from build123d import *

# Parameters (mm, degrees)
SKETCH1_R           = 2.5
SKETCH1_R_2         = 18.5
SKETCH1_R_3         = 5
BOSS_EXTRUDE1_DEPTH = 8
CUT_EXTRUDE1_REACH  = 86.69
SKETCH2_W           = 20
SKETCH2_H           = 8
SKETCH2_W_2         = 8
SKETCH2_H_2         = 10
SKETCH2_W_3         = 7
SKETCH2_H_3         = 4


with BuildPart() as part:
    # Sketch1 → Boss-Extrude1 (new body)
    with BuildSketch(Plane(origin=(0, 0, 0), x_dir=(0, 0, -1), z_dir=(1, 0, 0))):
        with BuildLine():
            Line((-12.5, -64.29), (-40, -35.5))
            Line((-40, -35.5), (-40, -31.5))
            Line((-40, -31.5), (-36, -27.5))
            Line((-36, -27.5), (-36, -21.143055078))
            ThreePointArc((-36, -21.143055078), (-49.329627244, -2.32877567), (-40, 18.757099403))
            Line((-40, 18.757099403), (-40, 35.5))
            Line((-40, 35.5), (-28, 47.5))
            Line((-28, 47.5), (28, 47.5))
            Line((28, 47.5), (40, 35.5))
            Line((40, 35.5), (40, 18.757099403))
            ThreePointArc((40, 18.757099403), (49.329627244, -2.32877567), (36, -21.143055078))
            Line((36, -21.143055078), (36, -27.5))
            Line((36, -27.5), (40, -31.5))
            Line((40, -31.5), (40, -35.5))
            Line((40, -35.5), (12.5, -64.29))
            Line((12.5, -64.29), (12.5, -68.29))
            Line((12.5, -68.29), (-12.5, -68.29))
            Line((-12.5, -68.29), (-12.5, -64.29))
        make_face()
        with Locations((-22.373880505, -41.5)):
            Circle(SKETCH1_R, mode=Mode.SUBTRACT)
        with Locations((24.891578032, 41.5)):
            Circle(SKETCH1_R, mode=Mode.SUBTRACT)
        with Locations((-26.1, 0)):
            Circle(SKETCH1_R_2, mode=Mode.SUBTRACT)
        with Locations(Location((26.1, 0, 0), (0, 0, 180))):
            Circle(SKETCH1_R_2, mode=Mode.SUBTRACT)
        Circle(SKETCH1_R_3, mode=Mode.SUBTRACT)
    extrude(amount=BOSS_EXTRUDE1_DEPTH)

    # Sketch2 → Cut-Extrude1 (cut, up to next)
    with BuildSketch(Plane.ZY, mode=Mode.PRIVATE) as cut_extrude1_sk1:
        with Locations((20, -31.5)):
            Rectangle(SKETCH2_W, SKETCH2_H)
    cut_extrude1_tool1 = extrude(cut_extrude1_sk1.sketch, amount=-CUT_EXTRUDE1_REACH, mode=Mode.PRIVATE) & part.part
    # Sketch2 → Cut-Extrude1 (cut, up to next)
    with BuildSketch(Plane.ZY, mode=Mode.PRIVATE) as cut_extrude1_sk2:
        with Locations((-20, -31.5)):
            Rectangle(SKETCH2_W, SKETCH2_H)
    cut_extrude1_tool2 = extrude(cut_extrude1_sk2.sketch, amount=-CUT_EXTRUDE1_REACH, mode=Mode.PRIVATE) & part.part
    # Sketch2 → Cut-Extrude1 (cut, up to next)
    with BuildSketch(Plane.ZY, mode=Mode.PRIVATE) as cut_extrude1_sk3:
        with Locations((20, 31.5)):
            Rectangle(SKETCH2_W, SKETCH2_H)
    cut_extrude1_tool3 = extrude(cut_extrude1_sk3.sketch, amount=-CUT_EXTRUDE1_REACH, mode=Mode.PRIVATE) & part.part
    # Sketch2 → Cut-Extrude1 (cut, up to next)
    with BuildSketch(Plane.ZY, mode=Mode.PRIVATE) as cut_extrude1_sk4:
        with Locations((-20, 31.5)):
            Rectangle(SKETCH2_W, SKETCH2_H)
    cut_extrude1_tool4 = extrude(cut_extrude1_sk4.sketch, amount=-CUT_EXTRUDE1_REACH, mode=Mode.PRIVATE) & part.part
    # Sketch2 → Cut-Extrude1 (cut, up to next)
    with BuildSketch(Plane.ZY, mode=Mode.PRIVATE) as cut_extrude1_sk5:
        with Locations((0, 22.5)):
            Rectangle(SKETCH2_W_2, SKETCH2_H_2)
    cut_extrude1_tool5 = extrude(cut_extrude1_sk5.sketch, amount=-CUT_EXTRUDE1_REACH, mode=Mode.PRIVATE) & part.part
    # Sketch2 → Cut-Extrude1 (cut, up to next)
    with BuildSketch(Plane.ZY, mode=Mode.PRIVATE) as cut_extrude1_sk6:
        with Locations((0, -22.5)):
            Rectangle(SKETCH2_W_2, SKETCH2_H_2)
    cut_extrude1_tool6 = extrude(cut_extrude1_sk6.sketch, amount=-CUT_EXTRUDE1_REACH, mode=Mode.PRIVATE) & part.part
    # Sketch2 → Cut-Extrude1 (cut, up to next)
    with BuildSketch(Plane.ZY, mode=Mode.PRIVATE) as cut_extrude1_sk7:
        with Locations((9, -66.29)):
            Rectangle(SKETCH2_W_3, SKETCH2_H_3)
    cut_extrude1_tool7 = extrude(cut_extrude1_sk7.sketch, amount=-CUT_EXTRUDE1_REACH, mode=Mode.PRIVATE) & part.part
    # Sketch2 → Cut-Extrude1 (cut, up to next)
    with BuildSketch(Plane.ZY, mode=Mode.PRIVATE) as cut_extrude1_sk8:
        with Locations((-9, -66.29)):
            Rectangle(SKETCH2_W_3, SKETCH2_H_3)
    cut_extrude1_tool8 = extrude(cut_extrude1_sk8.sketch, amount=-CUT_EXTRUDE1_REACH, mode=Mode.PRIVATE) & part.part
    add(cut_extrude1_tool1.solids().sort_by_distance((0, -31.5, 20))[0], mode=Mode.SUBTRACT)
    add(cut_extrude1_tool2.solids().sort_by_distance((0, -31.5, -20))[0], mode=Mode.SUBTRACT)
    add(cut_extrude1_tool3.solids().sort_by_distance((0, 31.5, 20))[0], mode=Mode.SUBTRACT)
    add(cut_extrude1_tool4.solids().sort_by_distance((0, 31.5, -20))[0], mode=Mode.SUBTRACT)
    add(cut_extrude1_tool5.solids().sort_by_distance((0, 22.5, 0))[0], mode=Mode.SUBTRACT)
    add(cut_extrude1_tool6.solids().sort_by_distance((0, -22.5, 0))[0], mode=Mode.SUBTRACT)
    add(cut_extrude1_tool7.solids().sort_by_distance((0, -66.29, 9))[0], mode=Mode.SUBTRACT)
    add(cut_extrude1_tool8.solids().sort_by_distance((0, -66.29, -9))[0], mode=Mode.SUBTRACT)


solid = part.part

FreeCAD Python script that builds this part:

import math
import FreeCAD as App
import Part
import Sketcher

V = App.Vector


def add_polygon(sketch, points):
    """Adds a closed chain of lines whose ends are joined by coincident constraints."""
    first, n = sketch.GeometryCount, len(points)
    for a, b in zip(points, points[1:] + points[:1]):
        sketch.addGeometry(Part.LineSegment(App.Vector(*a, 0), App.Vector(*b, 0)), False)
    for i in range(n):
        sketch.addConstraint(Sketcher.Constraint("Coincident", first + i, 2, first + (i + 1) % n, 1))

doc = App.newDocument("Part")
body = doc.addObject("PartDesign::Body", "Body")

# Sketch on YZ plane
sketch1 = body.newObject("Sketcher::SketchObject", "Sketch")
sketch1.AttachmentSupport = (doc.getObject("YZ_Plane"), [""])
sketch1.MapMode = "FlatFace"
sketch1.addGeometry(Part.LineSegment(V(-35.5, 40, 0), V(-64.29, 12.5, 0)), False)
sketch1.addGeometry(Part.LineSegment(V(-64.29, 12.5, 0), V(-68.29, 12.5, 0)), False)
sketch1.addGeometry(Part.LineSegment(V(-68.29, 12.5, 0), V(-68.29, -12.5, 0)), False)
sketch1.addGeometry(Part.LineSegment(V(-68.29, -12.5, 0), V(-64.29, -12.5, 0)), False)
sketch1.addGeometry(Part.LineSegment(V(-64.29, -12.5, 0), V(-35.5, -40, 0)), False)
sketch1.addGeometry(Part.LineSegment(V(-35.5, -40, 0), V(-31.5, -40, 0)), False)
sketch1.addGeometry(Part.LineSegment(V(-31.5, -40, 0), V(-27.5, -36, 0)), False)
sketch1.addGeometry(Part.LineSegment(V(-27.5, -36, 0), V(-21.143055, -36, 0)), False)
sketch1.addGeometry(Part.ArcOfCircle(Part.Circle(V(0, -26.1, 0), V(0, 0, 1), 23.346066), math.radians(-154.90918), math.radians(-36.540397)), False)
sketch1.addGeometry(Part.LineSegment(V(18.757099, -40, 0), V(35.5, -40, 0)), False)
sketch1.addGeometry(Part.LineSegment(V(35.5, -40, 0), V(47.5, -28, 0)), False)
sketch1.addGeometry(Part.LineSegment(V(47.5, -28, 0), V(47.5, 28, 0)), False)
sketch1.addGeometry(Part.LineSegment(V(47.5, 28, 0), V(35.5, 40, 0)), False)
sketch1.addGeometry(Part.LineSegment(V(35.5, 40, 0), V(18.757099, 40, 0)), False)
sketch1.addGeometry(Part.ArcOfCircle(Part.Circle(V(0, 26.1, 0), V(0, 0, 1), 23.346066), math.radians(36.540397), math.radians(154.90918)), False)
sketch1.addGeometry(Part.LineSegment(V(-21.143055, 36, 0), V(-27.5, 36, 0)), False)
sketch1.addGeometry(Part.LineSegment(V(-27.5, 36, 0), V(-31.5, 40, 0)), False)
sketch1.addGeometry(Part.LineSegment(V(-31.5, 40, 0), V(-35.5, 40, 0)), False)
sketch1.addGeometry(Part.Circle(V(-41.5, 22.373881, 0), V(0, 0, 1), 2.5), False)
sketch1.addGeometry(Part.Circle(V(0, -26.1, 0), V(0, 0, 1), 18.5), False)
sketch1.addGeometry(Part.Circle(V(41.5, -24.891578, 0), V(0, 0, 1), 2.5), False)
sketch1.addGeometry(Part.Circle(V(0, 0, 0), V(0, 0, 1), 5), False)
sketch1.addGeometry(Part.Circle(V(0, 26.1, 0), V(0, 0, 1), 18.5), False)
sketch1.addConstraint(Sketcher.Constraint("Coincident", 0, 2, 1, 1))
sketch1.addConstraint(Sketcher.Constraint("Coincident", 1, 2, 2, 1))
sketch1.addConstraint(Sketcher.Constraint("Coincident", 2, 2, 3, 1))
sketch1.addConstraint(Sketcher.Constraint("Coincident", 3, 2, 4, 1))
sketch1.addConstraint(Sketcher.Constraint("Coincident", 4, 2, 5, 1))
sketch1.addConstraint(Sketcher.Constraint("Coincident", 5, 2, 6, 1))
sketch1.addConstraint(Sketcher.Constraint("Coincident", 6, 2, 7, 1))
sketch1.addConstraint(Sketcher.Constraint("Coincident", 7, 2, 8, 1))
sketch1.addConstraint(Sketcher.Constraint("Coincident", 8, 2, 9, 1))
sketch1.addConstraint(Sketcher.Constraint("Coincident", 9, 2, 10, 1))
sketch1.addConstraint(Sketcher.Constraint("Coincident", 10, 2, 11, 1))
sketch1.addConstraint(Sketcher.Constraint("Coincident", 11, 2, 12, 1))
sketch1.addConstraint(Sketcher.Constraint("Coincident", 12, 2, 13, 1))
sketch1.addConstraint(Sketcher.Constraint("Coincident", 13, 2, 14, 1))
sketch1.addConstraint(Sketcher.Constraint("Coincident", 14, 2, 15, 1))
sketch1.addConstraint(Sketcher.Constraint("Coincident", 15, 2, 16, 1))
sketch1.addConstraint(Sketcher.Constraint("Coincident", 16, 2, 17, 1))
sketch1.addConstraint(Sketcher.Constraint("Coincident", 17, 2, 0, 1))
sketch1.addConstraint(Sketcher.Constraint("Horizontal", 1))
sketch1.addConstraint(Sketcher.Constraint("Vertical", 2))
sketch1.addConstraint(Sketcher.Constraint("Horizontal", 3))
sketch1.addConstraint(Sketcher.Constraint("Horizontal", 5))
sketch1.addConstraint(Sketcher.Constraint("Horizontal", 7))
sketch1.addConstraint(Sketcher.Constraint("Horizontal", 9))
sketch1.addConstraint(Sketcher.Constraint("Vertical", 11))
sketch1.addConstraint(Sketcher.Constraint("Horizontal", 13))
sketch1.addConstraint(Sketcher.Constraint("Horizontal", 15))
sketch1.addConstraint(Sketcher.Constraint("Horizontal", 17))
sketch1.addConstraint(Sketcher.Constraint("Coincident", 21, 3, -1, 1))
sketch1.addConstraint(Sketcher.Constraint("Coincident", 19, 3, 8, 3))
sketch1.addConstraint(Sketcher.Constraint("Coincident", 22, 3, 14, 3))
sketch1.addConstraint(Sketcher.Constraint("Equal", 8, 14))
sketch1.addConstraint(Sketcher.Constraint("Equal", 18, 20))
sketch1.addConstraint(Sketcher.Constraint("Equal", 19, 22))
sketch1.addConstraint(Sketcher.Constraint("Symmetric", 8, 3, 14, 3, -1, 1))
sketch1.addConstraint(Sketcher.Constraint("Symmetric", 4, 2, 12, 2, -1, 1))
sketch1.addConstraint(Sketcher.Constraint("Symmetric", 9, 2, 17, 2, -1, 1))
sketch1.addConstraint(Sketcher.Constraint("Symmetric", 4, 2, 9, 2, -2))
sketch1.addConstraint(Sketcher.Constraint("Symmetric", 0, 2, 3, 2, -1))
sketch1.addConstraint(Sketcher.Constraint("Symmetric", 7, 2, 14, 2, -1))
sketch1.addConstraint(Sketcher.Constraint("Parallel", 6, 10))
sketch1.addConstraint(Sketcher.Constraint("Perpendicular", 10, 12))
sketch1.addConstraint(Sketcher.Constraint("Parallel", 12, 16))
sketch1.addConstraint(Sketcher.Constraint("Vertical", 6, 2, 15, 2))
sketch1.addConstraint(Sketcher.Constraint("Vertical", 5, 2, 16, 2))
sketch1.addConstraint(Sketcher.Constraint("Equal", 3, 5))
sketch1.addConstraint(Sketcher.Constraint("Diameter", 18, 5.0))
sketch1.addConstraint(Sketcher.Constraint("Diameter", 19, 37.0))
sketch1.addConstraint(Sketcher.Constraint("Diameter", 21, 10.0))
sketch1.addConstraint(Sketcher.Constraint("DistanceX", 1, 2, 1, 1, 4.0))
sketch1.addConstraint(Sketcher.Constraint("DistanceY", 2, 2, 2, 1, 25.0))
sketch1.addConstraint(Sketcher.Constraint("DistanceY", 11, 1, 11, 2, 56.0))
sketch1.addConstraint(Sketcher.Constraint("DistanceY", 4, 2, -1, 1, 40.0))
sketch1.addConstraint(Sketcher.Constraint("DistanceY", 6, 2, -1, 1, 36.0))
sketch1.addConstraint(Sketcher.Constraint("DistanceX", 18, 3, 20, 3, 83.0))
sketch1.addConstraint(Sketcher.Constraint("DistanceX", 9, 2, 20, 3, 6.0))
sketch1.addConstraint(Sketcher.Constraint("DistanceX", 18, 3, 15, 2, 14.0))
sketch1.addConstraint(Sketcher.Constraint("DistanceY", 8, 3, -1, 1, 26.1))
sketch1.addConstraint(Sketcher.Constraint("DistanceX", 0, 2, -1, 1, 64.29))
sketch1.addConstraint(Sketcher.Constraint("DistanceX", 9, 1, 9, 2, 16.742901))
sketch1.addConstraint(Sketcher.Constraint("DistanceY", -1, 1, 18, 3, 22.373881))
sketch1.addConstraint(Sketcher.Constraint("DistanceY", 20, 3, -1, 1, 24.891578))
pad1 = body.newObject("PartDesign::Pad", "Pad")
pad1.Profile = sketch1
pad1.Length = 8

# Sketch on YZ plane
sketch2 = body.newObject("Sketcher::SketchObject", "Sketch001")
sketch2.AttachmentSupport = (doc.getObject("YZ_Plane"), [""])
sketch2.MapMode = "FlatFace"
add_polygon(sketch2, [(-27.5, 10), (-35.5, 10), (-35.5, 30), (-27.5, 30)])  # lines 0-3
sketch2.addConstraint(Sketcher.Constraint("Horizontal", 0))
sketch2.addConstraint(Sketcher.Constraint("Vertical", 1))
sketch2.addConstraint(Sketcher.Constraint("Horizontal", 2))
sketch2.addConstraint(Sketcher.Constraint("Vertical", 3))
sketch2.addConstraint(Sketcher.Constraint("DistanceX", 0, 2, 0, 1, 8.0))
sketch2.addConstraint(Sketcher.Constraint("DistanceY", 1, 1, 1, 2, 20.0))
sketch2.addConstraint(Sketcher.Constraint("DistanceY", -1, 1, 0, 2, 10.0))
sketch2.addConstraint(Sketcher.Constraint("DistanceX", 0, 2, -1, 1, 35.5))
pocket1 = body.newObject("PartDesign::Pocket", "Pocket")
pocket1.Profile = sketch2
pocket1.Type = "UpToFirst"
pocket1.Reversed = True

# Sketch on YZ plane
sketch3 = body.newObject("Sketcher::SketchObject", "Sketch002")
sketch3.AttachmentSupport = (doc.getObject("YZ_Plane"), [""])
sketch3.MapMode = "FlatFace"
add_polygon(sketch3, [(-27.5, -30), (-35.5, -30), (-35.5, -10), (-27.5, -10)])  # lines 0-3
sketch3.addConstraint(Sketcher.Constraint("Horizontal", 0))
sketch3.addConstraint(Sketcher.Constraint("Vertical", 1))
sketch3.addConstraint(Sketcher.Constraint("Horizontal", 2))
sketch3.addConstraint(Sketcher.Constraint("Vertical", 3))
sketch3.addConstraint(Sketcher.Constraint("DistanceX", 0, 2, 0, 1, 8.0))
sketch3.addConstraint(Sketcher.Constraint("DistanceY", 1, 1, 1, 2, 20.0))
sketch3.addConstraint(Sketcher.Constraint("DistanceY", 0, 2, -1, 1, 30.0))
sketch3.addConstraint(Sketcher.Constraint("DistanceX", 0, 2, -1, 1, 35.5))
pocket2 = body.newObject("PartDesign::Pocket", "Pocket001")
pocket2.Profile = sketch3
pocket2.Type = "UpToFirst"
pocket2.Reversed = True

# Sketch on YZ plane
sketch4 = body.newObject("Sketcher::SketchObject", "Sketch003")
sketch4.AttachmentSupport = (doc.getObject("YZ_Plane"), [""])
sketch4.MapMode = "FlatFace"
add_polygon(sketch4, [(35.5, 10), (27.5, 10), (27.5, 30), (35.5, 30)])  # lines 0-3
sketch4.addConstraint(Sketcher.Constraint("Horizontal", 0))
sketch4.addConstraint(Sketcher.Constraint("Vertical", 1))
sketch4.addConstraint(Sketcher.Constraint("Horizontal", 2))
sketch4.addConstraint(Sketcher.Constraint("Vertical", 3))
sketch4.addConstraint(Sketcher.Constraint("DistanceX", 0, 2, 0, 1, 8.0))
sketch4.addConstraint(Sketcher.Constraint("DistanceY", 1, 1, 1, 2, 20.0))
sketch4.addConstraint(Sketcher.Constraint("DistanceY", -1, 1, 0, 2, 10.0))
sketch4.addConstraint(Sketcher.Constraint("DistanceX", -1, 1, 0, 2, 27.5))
pocket3 = body.newObject("PartDesign::Pocket", "Pocket002")
pocket3.Profile = sketch4
pocket3.Type = "UpToFirst"
pocket3.Reversed = True

# Sketch on YZ plane
sketch5 = body.newObject("Sketcher::SketchObject", "Sketch004")
sketch5.AttachmentSupport = (doc.getObject("YZ_Plane"), [""])
sketch5.MapMode = "FlatFace"
add_polygon(sketch5, [(35.5, -30), (27.5, -30), (27.5, -10), (35.5, -10)])  # lines 0-3
sketch5.addConstraint(Sketcher.Constraint("Horizontal", 0))
sketch5.addConstraint(Sketcher.Constraint("Vertical", 1))
sketch5.addConstraint(Sketcher.Constraint("Horizontal", 2))
sketch5.addConstraint(Sketcher.Constraint("Vertical", 3))
sketch5.addConstraint(Sketcher.Constraint("DistanceX", 0, 2, 0, 1, 8.0))
sketch5.addConstraint(Sketcher.Constraint("DistanceY", 1, 1, 1, 2, 20.0))
sketch5.addConstraint(Sketcher.Constraint("DistanceY", 0, 2, -1, 1, 30.0))
sketch5.addConstraint(Sketcher.Constraint("DistanceX", -1, 1, 0, 2, 27.5))
pocket4 = body.newObject("PartDesign::Pocket", "Pocket003")
pocket4.Profile = sketch5
pocket4.Type = "UpToFirst"
pocket4.Reversed = True

# Sketch on YZ plane
sketch6 = body.newObject("Sketcher::SketchObject", "Sketch005")
sketch6.AttachmentSupport = (doc.getObject("YZ_Plane"), [""])
sketch6.MapMode = "FlatFace"
add_polygon(sketch6, [(27.5, -4), (17.5, -4), (17.5, 4), (27.5, 4)])  # lines 0-3
sketch6.addConstraint(Sketcher.Constraint("Horizontal", 0))
sketch6.addConstraint(Sketcher.Constraint("Vertical", 1))
sketch6.addConstraint(Sketcher.Constraint("Horizontal", 2))
sketch6.addConstraint(Sketcher.Constraint("Vertical", 3))
sketch6.addConstraint(Sketcher.Constraint("DistanceX", 0, 2, 0, 1, 10.0))
sketch6.addConstraint(Sketcher.Constraint("DistanceY", 1, 1, 1, 2, 8.0))
sketch6.addConstraint(Sketcher.Constraint("DistanceY", 0, 2, -1, 1, 4.0))
sketch6.addConstraint(Sketcher.Constraint("DistanceX", -1, 1, 0, 2, 17.5))
pocket5 = body.newObject("PartDesign::Pocket", "Pocket004")
pocket5.Profile = sketch6
pocket5.Type = "UpToFirst"
pocket5.Reversed = True

# Sketch on YZ plane
sketch7 = body.newObject("Sketcher::SketchObject", "Sketch006")
sketch7.AttachmentSupport = (doc.getObject("YZ_Plane"), [""])
sketch7.MapMode = "FlatFace"
add_polygon(sketch7, [(-17.5, -4), (-27.5, -4), (-27.5, 4), (-17.5, 4)])  # lines 0-3
sketch7.addConstraint(Sketcher.Constraint("Horizontal", 0))
sketch7.addConstraint(Sketcher.Constraint("Vertical", 1))
sketch7.addConstraint(Sketcher.Constraint("Horizontal", 2))
sketch7.addConstraint(Sketcher.Constraint("Vertical", 3))
sketch7.addConstraint(Sketcher.Constraint("DistanceX", 0, 2, 0, 1, 10.0))
sketch7.addConstraint(Sketcher.Constraint("DistanceY", 1, 1, 1, 2, 8.0))
sketch7.addConstraint(Sketcher.Constraint("DistanceY", 0, 2, -1, 1, 4.0))
sketch7.addConstraint(Sketcher.Constraint("DistanceX", 0, 2, -1, 1, 27.5))
pocket6 = body.newObject("PartDesign::Pocket", "Pocket005")
pocket6.Profile = sketch7
pocket6.Type = "UpToFirst"
pocket6.Reversed = True

# Sketch on YZ plane
sketch8 = body.newObject("Sketcher::SketchObject", "Sketch007")
sketch8.AttachmentSupport = (doc.getObject("YZ_Plane"), [""])
sketch8.MapMode = "FlatFace"
add_polygon(sketch8, [(-64.29, 5.5), (-68.29, 5.5), (-68.29, 12.5), (-64.29, 12.5)])  # lines 0-3
sketch8.addConstraint(Sketcher.Constraint("Horizontal", 0))
sketch8.addConstraint(Sketcher.Constraint("Vertical", 1))
sketch8.addConstraint(Sketcher.Constraint("Horizontal", 2))
sketch8.addConstraint(Sketcher.Constraint("Vertical", 3))
sketch8.addConstraint(Sketcher.Constraint("DistanceX", 0, 2, 0, 1, 4.0))
sketch8.addConstraint(Sketcher.Constraint("DistanceY", 1, 1, 1, 2, 7.0))
sketch8.addConstraint(Sketcher.Constraint("DistanceY", -1, 1, 0, 2, 5.5))
sketch8.addConstraint(Sketcher.Constraint("DistanceX", 0, 2, -1, 1, 68.29))
pocket7 = body.newObject("PartDesign::Pocket", "Pocket006")
pocket7.Profile = sketch8
pocket7.Type = "UpToFirst"
pocket7.Reversed = True

# Sketch on YZ plane
sketch9 = body.newObject("Sketcher::SketchObject", "Sketch008")
sketch9.AttachmentSupport = (doc.getObject("YZ_Plane"), [""])
sketch9.MapMode = "FlatFace"
add_polygon(sketch9, [(-64.29, -12.5), (-68.29, -12.5), (-68.29, -5.5), (-64.29, -5.5)])  # lines 0-3
sketch9.addConstraint(Sketcher.Constraint("Horizontal", 0))
sketch9.addConstraint(Sketcher.Constraint("Vertical", 1))
sketch9.addConstraint(Sketcher.Constraint("Horizontal", 2))
sketch9.addConstraint(Sketcher.Constraint("Vertical", 3))
sketch9.addConstraint(Sketcher.Constraint("DistanceX", 0, 2, 0, 1, 4.0))
sketch9.addConstraint(Sketcher.Constraint("DistanceY", 1, 1, 1, 2, 7.0))
sketch9.addConstraint(Sketcher.Constraint("DistanceY", 0, 2, -1, 1, 12.5))
sketch9.addConstraint(Sketcher.Constraint("DistanceX", 0, 2, -1, 1, 68.29))
pocket8 = body.newObject("PartDesign::Pocket", "Pocket007")
pocket8.Profile = sketch9
pocket8.Type = "UpToFirst"
pocket8.Reversed = True

doc.recompute()
